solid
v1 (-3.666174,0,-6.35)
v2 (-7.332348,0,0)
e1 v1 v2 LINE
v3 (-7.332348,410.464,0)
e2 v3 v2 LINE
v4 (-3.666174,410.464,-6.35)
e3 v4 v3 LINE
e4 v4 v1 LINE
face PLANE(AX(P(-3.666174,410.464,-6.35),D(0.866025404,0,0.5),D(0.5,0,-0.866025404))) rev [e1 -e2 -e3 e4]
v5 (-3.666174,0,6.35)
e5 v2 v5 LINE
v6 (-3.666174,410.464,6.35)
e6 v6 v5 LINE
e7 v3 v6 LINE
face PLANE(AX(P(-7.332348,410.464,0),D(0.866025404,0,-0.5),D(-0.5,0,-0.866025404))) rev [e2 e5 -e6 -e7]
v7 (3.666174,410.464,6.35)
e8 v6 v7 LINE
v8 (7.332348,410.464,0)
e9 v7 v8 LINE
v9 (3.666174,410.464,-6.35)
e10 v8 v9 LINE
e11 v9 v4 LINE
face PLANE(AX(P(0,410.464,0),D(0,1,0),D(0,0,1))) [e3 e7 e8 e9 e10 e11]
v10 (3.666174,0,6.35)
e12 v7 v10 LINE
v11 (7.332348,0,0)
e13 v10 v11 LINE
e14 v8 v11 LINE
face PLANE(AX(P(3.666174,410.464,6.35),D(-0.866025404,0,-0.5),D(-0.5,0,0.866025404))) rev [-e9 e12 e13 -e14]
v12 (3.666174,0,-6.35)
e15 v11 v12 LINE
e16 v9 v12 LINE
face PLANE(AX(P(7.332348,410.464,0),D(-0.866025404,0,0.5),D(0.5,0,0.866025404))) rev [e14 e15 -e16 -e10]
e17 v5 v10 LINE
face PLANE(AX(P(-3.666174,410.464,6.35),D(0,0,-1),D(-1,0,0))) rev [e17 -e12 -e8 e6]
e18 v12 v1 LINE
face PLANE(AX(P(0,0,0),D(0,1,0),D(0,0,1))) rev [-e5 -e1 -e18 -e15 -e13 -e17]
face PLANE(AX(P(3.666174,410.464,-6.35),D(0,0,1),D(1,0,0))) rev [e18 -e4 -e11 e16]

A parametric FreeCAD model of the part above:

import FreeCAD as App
import Part
import Sketcher
from FreeCAD import Vector
Q = App.Units.Quantity


def add_polygon(sketch, points):
    """Adds a closed chain of lines whose ends are joined by coincident constraints."""
    first, n = sketch.GeometryCount, len(points)
    for a, b in zip(points, points[1:] + points[:1]):
        sketch.addGeometry(Part.LineSegment(App.Vector(*a, 0), App.Vector(*b, 0)), False)
    for i in range(n):
        sketch.addConstraint(Sketcher.Constraint("Coincident", first + i, 2, first + (i + 1) % n, 1))

doc = App.newDocument("Part")
params = doc.addObject("Spreadsheet::Sheet", "Params")
for row, (alias, value) in enumerate([
    ("pad1_length", "16.16 in"),
], start=1):
    params.set(f"A{row}", alias)
    params.set(f"B{row}", "=" + value)
    params.setAlias(f"B{row}", alias)

body = doc.addObject("PartDesign::Body", "Body")

# Sketch on XZ plane
sketch1 = body.newObject("Sketcher::SketchObject", "Sketch")
sketch1.AttachmentSupport = (doc.getObject("XZ_Plane"), [""])
sketch1.MapMode = "FlatFace"
add_polygon(sketch1, [(4, 6), (7, 0), (4, -6), (-4, -6), (-7, 0), (-4, 6)])  # lines 0-5
sketch1.addConstraint(Sketcher.Constraint("Horizontal", 2))
sketch1.addConstraint(Sketcher.Constraint("Horizontal", 5))
sketch1.addConstraint(Sketcher.Constraint("Symmetric", 0, 2, 3, 2, -1, 1))
sketch1.addConstraint(Sketcher.Constraint("Symmetric", 1, 2, 4, 2, -1, 1))
sketch1.addConstraint(Sketcher.Constraint("PointOnObject", 0, 2, -1))
sketch1.addConstraint(Sketcher.Constraint("Parallel", 0, 3))
sketch1.addConstraint(Sketcher.Constraint("Vertical", 2, 2, 4, 2))
sketch1.addConstraint(Sketcher.Constraint("Angle", 0, Q("-60 deg")))
sketch1.addConstraint(Sketcher.Constraint("DistanceY", 2, 2, 4, 2, Q("0.5 in")))
sketch1.addConstraint(Sketcher.Constraint("DistanceX", 2, 2, 2, 1, Q("7.332348 mm")))
pad1 = body.newObject("PartDesign::Pad", "Pad")
pad1.Profile = sketch1
pad1.setExpression("Length", "Params.pad1_length")
pad1.Reversed = True

doc.recompute()
